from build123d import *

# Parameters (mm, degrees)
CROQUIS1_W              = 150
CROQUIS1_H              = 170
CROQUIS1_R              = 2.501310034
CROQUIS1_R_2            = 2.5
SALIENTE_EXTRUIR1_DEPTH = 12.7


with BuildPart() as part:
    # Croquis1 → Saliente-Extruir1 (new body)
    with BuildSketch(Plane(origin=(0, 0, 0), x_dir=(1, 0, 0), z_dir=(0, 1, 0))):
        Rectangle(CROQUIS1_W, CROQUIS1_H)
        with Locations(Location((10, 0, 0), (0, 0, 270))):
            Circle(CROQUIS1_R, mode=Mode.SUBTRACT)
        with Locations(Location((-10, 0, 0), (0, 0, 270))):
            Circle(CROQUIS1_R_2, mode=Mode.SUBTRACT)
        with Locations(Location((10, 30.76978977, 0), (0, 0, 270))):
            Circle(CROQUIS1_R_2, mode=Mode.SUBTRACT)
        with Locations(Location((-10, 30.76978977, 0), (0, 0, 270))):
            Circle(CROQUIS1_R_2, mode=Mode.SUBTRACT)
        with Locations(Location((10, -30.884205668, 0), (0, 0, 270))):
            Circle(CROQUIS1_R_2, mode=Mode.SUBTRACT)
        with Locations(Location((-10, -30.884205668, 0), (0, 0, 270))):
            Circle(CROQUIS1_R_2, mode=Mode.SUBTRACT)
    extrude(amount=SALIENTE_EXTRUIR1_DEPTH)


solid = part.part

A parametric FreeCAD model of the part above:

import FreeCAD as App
import Part
import Sketcher
from FreeCAD import Vector


def add_polygon(sketch, points):
    """Adds a closed chain of lines whose ends are joined by coincident constraints."""
    first, n = sketch.GeometryCount, len(points)
    for a, b in zip(points, points[1:] + points[:1]):
        sketch.addGeometry(Part.LineSegment(App.Vector(*a, 0), App.Vector(*b, 0)), False)
    for i in range(n):
        sketch.addConstraint(Sketcher.Constraint("Coincident", first + i, 2, first + (i + 1) % n, 1))

doc = App.newDocument("Part")
params = doc.addObject("Spreadsheet::Sheet", "Params")
for row, (alias, value) in enumerate([
    ("sketch1_diameter", "5 mm"),
    ("sketch1_width", "150 mm"),
    ("sketch1_height", "170 mm"),
    ("pad1_length", "12.7 mm"),
], start=1):
    params.set(f"A{row}", alias)
    params.set(f"B{row}", "=" + value)
    params.setAlias(f"B{row}", alias)

body = doc.addObject("PartDesign::Body", "Body")

sketch1 = doc.addObject("Sketcher::SketchObject", "Sketch")
body.addObject(sketch1)
sketch1.AttachmentSupport = (doc.XZ_Plane, [""])
sketch1.MapMode = "FlatFace"
add_polygon(sketch1, [(-75, -85), (-75, 85), (75, 85), (75, -85)])
sketch1.addGeometry(Part.Circle(Vector(-10, 30.9, 0), Vector(0, 0, 1), 2.5), False)
sketch1.addGeometry(Part.Circle(Vector(10, 30.9, 0), Vector(0, 0, 1), 2.5), False)
sketch1.addGeometry(Part.Circle(Vector(-10, 0, 0), Vector(0, 0, 1), 2.5), False)
sketch1.addGeometry(Part.Circle(Vector(-10, -30.8, 0), Vector(0, 0, 1), 2.5), False)
sketch1.addGeometry(Part.Circle(Vector(10, 0, 0), Vector(0, 0, 1), 2.5), False)
sketch1.addGeometry(Part.Circle(Vector(10, -30.8, 0), Vector(0, 0, 1), 2.5), False)
sketch1.addConstraint([
    Sketcher.Constraint("Vertical", 0),
    Sketcher.Constraint("Horizontal", 1),
    Sketcher.Constraint("Vertical", 2),
    Sketcher.Constraint("Horizontal", 3),
    Sketcher.Constraint("Equal", 4, 5),
    Sketcher.Constraint("Equal", 5, 6),
    Sketcher.Constraint("Equal", 6, 7),
    Sketcher.Constraint("Equal", 7, 9),
    Sketcher.Constraint("Symmetric", 6, 3, 8, 3, -1, 1),
    Sketcher.Constraint("Symmetric", 0, 2, 2, 2, -1, 1),
    Sketcher.Constraint("Symmetric", 4, 3, 5, 3, -2),
    Sketcher.Constraint("Symmetric", 7, 3, 9, 3, -2),
    Sketcher.Constraint("PointOnObject", 6, 3, -1),
    Sketcher.Constraint("Vertical", 4, 3, 6, 3),
    Sketcher.Constraint("Vertical", 6, 3, 7, 3),
    Sketcher.Constraint("Diameter", 4, 5.0),
    Sketcher.Constraint("DistanceX", 1, 1, 1, 2, 150.0),
    Sketcher.Constraint("DistanceY", 0, 1, 0, 2, 170.0),
    Sketcher.Constraint("DistanceX", 4, 3, -1, 1, 10.0),
    Sketcher.Constraint("Diameter", 8, 5.00262),
    Sketcher.Constraint("DistanceY", 7, 3, -1, 1, 30.76979),
    Sketcher.Constraint("DistanceY", -1, 1, 4, 3, 30.884206),
])
sketch1.setExpression("Constraints[19]", "Params.sketch1_diameter")
sketch1.setExpression("Constraints[20]", "Params.sketch1_width")
sketch1.setExpression("Constraints[21]", "Params.sketch1_height")
pad1 = doc.addObject("PartDesign::Pad", "Pad")
body.addObject(pad1)
pad1.Profile = sketch1
pad1.setExpression("Length", "Params.pad1_length")
pad1.Reversed = True

doc.recompute()
